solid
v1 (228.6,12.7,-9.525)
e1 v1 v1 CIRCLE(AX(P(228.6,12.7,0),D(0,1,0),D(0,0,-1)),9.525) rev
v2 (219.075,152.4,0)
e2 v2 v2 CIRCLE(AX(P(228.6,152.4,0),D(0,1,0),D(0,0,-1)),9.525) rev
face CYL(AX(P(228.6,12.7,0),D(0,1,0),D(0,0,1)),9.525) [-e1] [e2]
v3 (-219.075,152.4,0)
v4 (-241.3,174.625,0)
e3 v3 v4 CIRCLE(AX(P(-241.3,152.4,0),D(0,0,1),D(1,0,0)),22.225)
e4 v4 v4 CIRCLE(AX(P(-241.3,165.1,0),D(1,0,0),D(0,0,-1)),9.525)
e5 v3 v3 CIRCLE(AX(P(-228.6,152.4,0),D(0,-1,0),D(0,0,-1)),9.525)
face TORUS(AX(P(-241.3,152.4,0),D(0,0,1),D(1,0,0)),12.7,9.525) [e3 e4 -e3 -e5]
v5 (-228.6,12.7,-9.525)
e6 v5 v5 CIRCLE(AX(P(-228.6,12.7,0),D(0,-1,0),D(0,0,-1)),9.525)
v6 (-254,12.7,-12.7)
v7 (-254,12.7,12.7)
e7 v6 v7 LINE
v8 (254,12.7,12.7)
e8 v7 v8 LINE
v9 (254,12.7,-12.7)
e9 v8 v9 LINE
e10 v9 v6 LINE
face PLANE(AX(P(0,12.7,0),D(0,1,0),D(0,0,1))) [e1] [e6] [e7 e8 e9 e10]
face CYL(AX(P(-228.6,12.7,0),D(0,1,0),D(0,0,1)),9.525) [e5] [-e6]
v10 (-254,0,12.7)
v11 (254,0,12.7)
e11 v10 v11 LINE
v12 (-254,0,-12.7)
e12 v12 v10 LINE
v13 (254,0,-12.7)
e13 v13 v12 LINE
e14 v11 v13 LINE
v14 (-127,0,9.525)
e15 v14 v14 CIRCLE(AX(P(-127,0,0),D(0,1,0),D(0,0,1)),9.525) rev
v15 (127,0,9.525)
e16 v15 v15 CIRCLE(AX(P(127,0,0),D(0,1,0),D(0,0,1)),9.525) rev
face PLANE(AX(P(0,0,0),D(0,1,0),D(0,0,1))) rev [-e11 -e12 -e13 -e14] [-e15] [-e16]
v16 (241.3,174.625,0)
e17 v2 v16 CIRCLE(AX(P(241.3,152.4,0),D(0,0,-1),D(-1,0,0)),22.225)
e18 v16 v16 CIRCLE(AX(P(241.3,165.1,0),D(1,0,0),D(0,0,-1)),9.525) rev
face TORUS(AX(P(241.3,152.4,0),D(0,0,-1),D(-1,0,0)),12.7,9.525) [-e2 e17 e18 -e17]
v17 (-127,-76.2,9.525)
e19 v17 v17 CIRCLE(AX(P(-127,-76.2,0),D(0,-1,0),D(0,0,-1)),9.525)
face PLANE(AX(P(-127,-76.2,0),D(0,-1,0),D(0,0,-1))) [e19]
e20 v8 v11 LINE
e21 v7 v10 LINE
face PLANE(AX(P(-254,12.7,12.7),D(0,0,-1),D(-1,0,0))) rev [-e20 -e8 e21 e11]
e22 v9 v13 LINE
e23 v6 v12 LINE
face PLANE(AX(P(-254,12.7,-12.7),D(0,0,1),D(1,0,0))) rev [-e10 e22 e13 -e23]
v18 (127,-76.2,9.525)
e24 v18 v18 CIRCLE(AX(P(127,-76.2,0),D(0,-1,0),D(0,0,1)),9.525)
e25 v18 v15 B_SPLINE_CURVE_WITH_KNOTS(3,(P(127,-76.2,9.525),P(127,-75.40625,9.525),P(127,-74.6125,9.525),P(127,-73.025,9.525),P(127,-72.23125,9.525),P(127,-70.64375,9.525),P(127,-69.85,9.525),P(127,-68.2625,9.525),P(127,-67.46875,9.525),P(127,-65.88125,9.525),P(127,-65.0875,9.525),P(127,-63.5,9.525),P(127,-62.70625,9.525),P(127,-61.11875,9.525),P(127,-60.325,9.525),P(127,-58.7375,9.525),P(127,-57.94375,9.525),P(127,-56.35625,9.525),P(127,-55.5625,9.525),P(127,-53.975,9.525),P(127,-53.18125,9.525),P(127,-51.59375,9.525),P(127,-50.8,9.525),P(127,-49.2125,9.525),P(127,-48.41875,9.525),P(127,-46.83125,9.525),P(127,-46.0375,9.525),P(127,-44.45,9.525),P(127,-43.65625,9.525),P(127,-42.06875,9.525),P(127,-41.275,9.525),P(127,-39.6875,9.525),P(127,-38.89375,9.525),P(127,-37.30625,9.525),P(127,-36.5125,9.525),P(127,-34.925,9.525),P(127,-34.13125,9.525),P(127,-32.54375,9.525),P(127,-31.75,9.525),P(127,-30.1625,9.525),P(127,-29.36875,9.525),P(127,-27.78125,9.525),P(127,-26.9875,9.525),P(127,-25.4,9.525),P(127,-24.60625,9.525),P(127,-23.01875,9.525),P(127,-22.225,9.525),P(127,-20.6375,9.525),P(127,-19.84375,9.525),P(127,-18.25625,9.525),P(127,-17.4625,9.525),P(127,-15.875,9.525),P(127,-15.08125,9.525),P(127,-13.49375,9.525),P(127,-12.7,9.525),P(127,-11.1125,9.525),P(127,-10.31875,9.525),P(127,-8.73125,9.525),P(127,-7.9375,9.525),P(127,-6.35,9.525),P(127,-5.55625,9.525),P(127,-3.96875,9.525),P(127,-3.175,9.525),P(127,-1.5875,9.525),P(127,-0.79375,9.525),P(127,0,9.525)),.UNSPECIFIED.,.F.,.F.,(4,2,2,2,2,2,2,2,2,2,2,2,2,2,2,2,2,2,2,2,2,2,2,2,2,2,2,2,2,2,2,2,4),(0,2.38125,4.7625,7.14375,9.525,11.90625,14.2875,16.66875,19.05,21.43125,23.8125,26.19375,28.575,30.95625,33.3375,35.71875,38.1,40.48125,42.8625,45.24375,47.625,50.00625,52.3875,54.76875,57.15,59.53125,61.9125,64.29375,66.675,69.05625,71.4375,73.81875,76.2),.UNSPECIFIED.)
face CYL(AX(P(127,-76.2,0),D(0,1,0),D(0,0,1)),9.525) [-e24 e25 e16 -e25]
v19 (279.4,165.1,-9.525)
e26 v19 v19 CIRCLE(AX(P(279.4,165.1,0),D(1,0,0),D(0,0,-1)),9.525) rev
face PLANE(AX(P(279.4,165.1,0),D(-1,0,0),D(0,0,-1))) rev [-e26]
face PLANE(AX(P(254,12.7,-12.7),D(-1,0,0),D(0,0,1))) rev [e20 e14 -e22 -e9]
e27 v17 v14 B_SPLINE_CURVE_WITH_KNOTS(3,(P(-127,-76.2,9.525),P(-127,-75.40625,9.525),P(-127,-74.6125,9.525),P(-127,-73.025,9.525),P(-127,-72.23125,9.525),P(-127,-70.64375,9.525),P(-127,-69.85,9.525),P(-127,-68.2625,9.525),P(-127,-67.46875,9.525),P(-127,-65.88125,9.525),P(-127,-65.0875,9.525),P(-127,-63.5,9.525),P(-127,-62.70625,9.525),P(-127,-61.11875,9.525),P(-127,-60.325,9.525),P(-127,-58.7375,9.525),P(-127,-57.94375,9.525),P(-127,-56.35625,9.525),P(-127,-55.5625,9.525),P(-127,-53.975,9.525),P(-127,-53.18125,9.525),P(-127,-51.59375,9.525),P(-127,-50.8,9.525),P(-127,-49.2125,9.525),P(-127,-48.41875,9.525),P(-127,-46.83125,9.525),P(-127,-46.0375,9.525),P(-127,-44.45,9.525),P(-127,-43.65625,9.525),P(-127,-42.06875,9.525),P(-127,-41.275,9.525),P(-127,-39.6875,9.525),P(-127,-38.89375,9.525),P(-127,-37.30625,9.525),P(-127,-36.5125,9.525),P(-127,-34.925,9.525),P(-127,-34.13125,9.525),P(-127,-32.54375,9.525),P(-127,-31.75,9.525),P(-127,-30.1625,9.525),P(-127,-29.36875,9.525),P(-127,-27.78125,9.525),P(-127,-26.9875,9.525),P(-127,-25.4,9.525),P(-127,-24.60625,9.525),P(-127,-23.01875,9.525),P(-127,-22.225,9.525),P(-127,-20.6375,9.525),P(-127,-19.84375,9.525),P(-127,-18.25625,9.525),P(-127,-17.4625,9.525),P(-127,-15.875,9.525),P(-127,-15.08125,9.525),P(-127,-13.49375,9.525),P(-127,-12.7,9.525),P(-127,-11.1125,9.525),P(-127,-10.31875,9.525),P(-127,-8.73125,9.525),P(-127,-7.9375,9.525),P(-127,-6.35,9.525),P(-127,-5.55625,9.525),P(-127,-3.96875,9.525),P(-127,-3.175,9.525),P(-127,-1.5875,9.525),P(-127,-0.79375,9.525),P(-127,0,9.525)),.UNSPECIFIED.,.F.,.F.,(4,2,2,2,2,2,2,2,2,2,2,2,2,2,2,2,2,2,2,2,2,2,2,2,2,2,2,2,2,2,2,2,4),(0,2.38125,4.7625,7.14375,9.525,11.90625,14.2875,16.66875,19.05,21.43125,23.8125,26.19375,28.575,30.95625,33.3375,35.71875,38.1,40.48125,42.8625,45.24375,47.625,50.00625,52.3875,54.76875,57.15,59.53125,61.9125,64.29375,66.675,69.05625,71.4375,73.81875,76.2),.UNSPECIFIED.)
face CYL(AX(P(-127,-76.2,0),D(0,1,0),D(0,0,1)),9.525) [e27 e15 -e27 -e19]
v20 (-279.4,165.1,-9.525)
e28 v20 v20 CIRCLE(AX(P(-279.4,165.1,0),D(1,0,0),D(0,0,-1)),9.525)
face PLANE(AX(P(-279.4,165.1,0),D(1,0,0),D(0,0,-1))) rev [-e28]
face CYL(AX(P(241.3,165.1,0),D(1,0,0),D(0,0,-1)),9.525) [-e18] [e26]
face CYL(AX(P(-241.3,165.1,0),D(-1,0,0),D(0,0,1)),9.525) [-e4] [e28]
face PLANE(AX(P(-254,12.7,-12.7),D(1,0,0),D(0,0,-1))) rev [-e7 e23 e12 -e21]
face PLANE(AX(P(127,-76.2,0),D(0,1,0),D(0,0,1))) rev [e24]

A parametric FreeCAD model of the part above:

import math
import FreeCAD as App
import Part
import Sketcher
Q = App.Units.Quantity

doc = App.newDocument("Part")
body = doc.addObject("PartDesign::Body", "Body")

sketch1 = doc.addObject("Sketcher::SketchObject", "Sketch")
body.addObject(sketch1)
sketch1.AttachmentSupport = (doc.XZ_Plane, [""])
sketch1.MapMode = "FlatFace"
sketch1.addGeometry([
    Part.LineSegment(App.Vector(-254, -13, 0), App.Vector(-254, 13, 0)),
    Part.LineSegment(App.Vector(-254, 13, 0), App.Vector(254, 13, 0)),
    Part.LineSegment(App.Vector(254, 13, 0), App.Vector(254, -13, 0)),
    Part.LineSegment(App.Vector(254, -13, 0), App.Vector(-254, -13, 0)),
], False)
sketch1.addConstraint([
    Sketcher.Constraint("Coincident", 0, 2, 1, 1),
    Sketcher.Constraint("Coincident", 1, 2, 2, 1),
    Sketcher.Constraint("Coincident", 2, 2, 3, 1),
    Sketcher.Constraint("Coincident", 3, 2, 0, 1),
    Sketcher.Constraint("Vertical", 0),
    Sketcher.Constraint("Horizontal", 1),
    Sketcher.Constraint("Vertical", 2),
    Sketcher.Constraint("Horizontal", 3),
    Sketcher.Constraint("Symmetric", 0, 2, 2, 2, -1, 1),
    Sketcher.Constraint("DistanceX", 1, 1, 1, 2, Q("20 in")),
    Sketcher.Constraint("DistanceY", 0, 1, 0, 2, Q("1 in")),
])
pad1 = doc.addObject("PartDesign::Pad", "Pad")
body.addObject(pad1)
pad1.Profile = sketch1
pad1.Length = Q("0.5 in")
pad1.Reversed = True

sketch2 = doc.addObject("Sketcher::SketchObject", "Sketch001")
body.addObject(sketch2)
sketch2.AttachmentSupport = (doc.XZ_Plane, [""])
sketch2.MapMode = "FlatFace"
sketch2.addGeometry([
    Part.Circle(App.Vector(-127, 0, 0), App.Vector(0, 0, 1), 10),
    Part.Circle(App.Vector(127, 0, 0), App.Vector(0, 0, 1), 10),
], False)
sketch2.addConstraint([
    Sketcher.Constraint("Equal", 0, 1),
    Sketcher.Constraint("Symmetric", 0, 3, 1, 3, -1, 1),
    Sketcher.Constraint("PointOnObject", 0, 3, -1),
    Sketcher.Constraint("Diameter", 0, Q("0.75 in")),
    Sketcher.Constraint("DistanceX", 0, 3, -1, 1, Q("5 in")),
])
pad2 = doc.addObject("PartDesign::Pad", "Pad001")
body.addObject(pad2)
pad2.Profile = sketch2
pad2.Length = Q("3 in")

sketch3 = doc.addObject("Sketcher::SketchObject", "Sketch002")
body.addObject(sketch3)
sketch3.AttachmentSupport = (doc.XZ_Plane, [""])
sketch3.MapMode = "FlatFace"
sketch3.AttachmentOffset = App.Placement(App.Vector(0, 0, -0.5 * 25.4), App.Rotation())
sketch3.addGeometry(Part.Circle(App.Vector(-229, 0, 0), App.Vector(0, 0, 1), 10), False)
sketch3.addConstraint([
    Sketcher.Constraint("PointOnObject", 0, 3, -1),
    Sketcher.Constraint("Diameter", 0, Q("0.75 in")),
    Sketcher.Constraint("DistanceX", 0, 3, -1, 1, Q("9 in")),
])

sketch4 = doc.addObject("Sketcher::SketchObject", "Sketch003")
body.addObject(sketch4)
sketch4.AttachmentSupport = (doc.XY_Plane, [""])
sketch4.MapMode = "FlatFace"
sketch4.addGeometry([
    Part.LineSegment(App.Vector(-229, 13, 0), App.Vector(-229, 152, 0)),
    Part.ArcOfCircle(Part.Circle(App.Vector(-241, 152, 0), App.Vector(0, 0, 1), 13), math.radians(0), math.radians(90)),
    Part.LineSegment(App.Vector(-241, 165, 0), App.Vector(-279, 165, 0)),
], False)
sketch4.addConstraint([
    Sketcher.Constraint("Tangent", 0, 2, 1, 1),
    Sketcher.Constraint("Tangent", 1, 2, 2, 1),
    Sketcher.Constraint("Vertical", 0),
    Sketcher.Constraint("Horizontal", 2),
    Sketcher.Constraint("Radius", 1, Q("0.5 in")),
    Sketcher.Constraint("DistanceX", 2, 2, 2, 1, Q("1.5 in")),
    Sketcher.Constraint("DistanceY", 0, 1, 0, 2, Q("5.5 in")),
    Sketcher.Constraint("DistanceY", -1, 1, 1, 3, Q("6 in")),
    Sketcher.Constraint("DistanceX", 0, 1, -1, 1, Q("9 in")),
])
doc.recompute()

additivepipe = doc.addObject("PartDesign::AdditivePipe", "AdditivePipe")
body.addObject(additivepipe)
additivepipe.Profile = sketch3
additivepipe.Spine = (sketch4, ["Edge1", "Edge2", "Edge3"])
doc.recompute()

mirrored = doc.addObject("PartDesign::Mirrored", "Mirrored")
body.addObject(mirrored)
mirrored.Originals = [additivepipe]
mirrored.MirrorPlane = (doc.YZ_Plane, [""])
body.Tip = mirrored

doc.recompute()
